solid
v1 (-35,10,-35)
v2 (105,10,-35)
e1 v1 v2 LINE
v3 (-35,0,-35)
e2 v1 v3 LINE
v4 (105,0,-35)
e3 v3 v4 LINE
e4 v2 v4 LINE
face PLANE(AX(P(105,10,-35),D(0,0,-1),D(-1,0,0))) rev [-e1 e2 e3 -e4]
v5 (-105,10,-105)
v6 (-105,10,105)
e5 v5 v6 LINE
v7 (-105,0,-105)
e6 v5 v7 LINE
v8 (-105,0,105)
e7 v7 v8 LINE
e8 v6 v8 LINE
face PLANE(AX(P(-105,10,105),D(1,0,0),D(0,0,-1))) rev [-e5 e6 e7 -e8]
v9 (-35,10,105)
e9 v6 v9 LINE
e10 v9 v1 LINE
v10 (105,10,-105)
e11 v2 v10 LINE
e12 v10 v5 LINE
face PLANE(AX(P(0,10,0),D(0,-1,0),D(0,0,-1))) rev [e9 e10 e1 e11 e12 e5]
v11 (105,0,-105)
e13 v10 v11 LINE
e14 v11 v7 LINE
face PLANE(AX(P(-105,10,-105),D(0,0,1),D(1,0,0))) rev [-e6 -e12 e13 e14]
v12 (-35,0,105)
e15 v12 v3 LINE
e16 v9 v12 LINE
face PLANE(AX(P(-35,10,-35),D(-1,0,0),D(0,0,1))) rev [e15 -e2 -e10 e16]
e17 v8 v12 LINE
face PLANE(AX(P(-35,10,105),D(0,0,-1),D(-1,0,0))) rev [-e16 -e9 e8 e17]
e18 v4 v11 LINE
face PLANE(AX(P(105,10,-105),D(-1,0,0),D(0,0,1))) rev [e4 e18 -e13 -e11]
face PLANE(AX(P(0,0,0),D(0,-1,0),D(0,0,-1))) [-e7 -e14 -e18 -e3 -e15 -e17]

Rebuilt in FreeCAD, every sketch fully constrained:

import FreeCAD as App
import Part
import Sketcher

V = App.Vector
Q = App.Units.Quantity


def add_polygon(sketch, points):
    """Adds a closed chain of lines whose ends are joined by coincident constraints."""
    first, n = sketch.GeometryCount, len(points)
    for a, b in zip(points, points[1:] + points[:1]):
        sketch.addGeometry(Part.LineSegment(App.Vector(*a, 0), App.Vector(*b, 0)), False)
    for i in range(n):
        sketch.addConstraint(Sketcher.Constraint("Coincident", first + i, 2, first + (i + 1) % n, 1))

doc = App.newDocument("Part")
body = doc.addObject("PartDesign::Body", "Body")

# Sketch on XZ plane
sketch1 = body.newObject("Sketcher::SketchObject", "Sketch")
sketch1.AttachmentSupport = (doc.getObject("XZ_Plane"), [""])
sketch1.MapMode = "FlatFace"
add_polygon(sketch1, [(-105, -105), (-105, 105), (-35, 105), (-35, -35), (105, -35), (105, -105)])  # lines 0-5
sketch1.addConstraint([
    Sketcher.Constraint("Vertical", 0),
    Sketcher.Constraint("Horizontal", 1),
    Sketcher.Constraint("Vertical", 2),
    Sketcher.Constraint("Horizontal", 3),
    Sketcher.Constraint("Vertical", 4),
    Sketcher.Constraint("Horizontal", 5),
    Sketcher.Constraint("Symmetric", 0, 2, 4, 2, -1, 1),
    Sketcher.Constraint("Equal", 5, 0),
    Sketcher.Constraint("Equal", 3, 2),
    Sketcher.Constraint("DistanceX", 1, 1, 1, 2, Q("70 mm")),
    Sketcher.Constraint("DistanceX", 3, 1, 3, 2, Q("140 mm")),
])
pad1 = body.newObject("PartDesign::Pad", "Pad")
pad1.Profile = sketch1
pad1.Length = 10
pad1.Reversed = True

doc.recompute()
